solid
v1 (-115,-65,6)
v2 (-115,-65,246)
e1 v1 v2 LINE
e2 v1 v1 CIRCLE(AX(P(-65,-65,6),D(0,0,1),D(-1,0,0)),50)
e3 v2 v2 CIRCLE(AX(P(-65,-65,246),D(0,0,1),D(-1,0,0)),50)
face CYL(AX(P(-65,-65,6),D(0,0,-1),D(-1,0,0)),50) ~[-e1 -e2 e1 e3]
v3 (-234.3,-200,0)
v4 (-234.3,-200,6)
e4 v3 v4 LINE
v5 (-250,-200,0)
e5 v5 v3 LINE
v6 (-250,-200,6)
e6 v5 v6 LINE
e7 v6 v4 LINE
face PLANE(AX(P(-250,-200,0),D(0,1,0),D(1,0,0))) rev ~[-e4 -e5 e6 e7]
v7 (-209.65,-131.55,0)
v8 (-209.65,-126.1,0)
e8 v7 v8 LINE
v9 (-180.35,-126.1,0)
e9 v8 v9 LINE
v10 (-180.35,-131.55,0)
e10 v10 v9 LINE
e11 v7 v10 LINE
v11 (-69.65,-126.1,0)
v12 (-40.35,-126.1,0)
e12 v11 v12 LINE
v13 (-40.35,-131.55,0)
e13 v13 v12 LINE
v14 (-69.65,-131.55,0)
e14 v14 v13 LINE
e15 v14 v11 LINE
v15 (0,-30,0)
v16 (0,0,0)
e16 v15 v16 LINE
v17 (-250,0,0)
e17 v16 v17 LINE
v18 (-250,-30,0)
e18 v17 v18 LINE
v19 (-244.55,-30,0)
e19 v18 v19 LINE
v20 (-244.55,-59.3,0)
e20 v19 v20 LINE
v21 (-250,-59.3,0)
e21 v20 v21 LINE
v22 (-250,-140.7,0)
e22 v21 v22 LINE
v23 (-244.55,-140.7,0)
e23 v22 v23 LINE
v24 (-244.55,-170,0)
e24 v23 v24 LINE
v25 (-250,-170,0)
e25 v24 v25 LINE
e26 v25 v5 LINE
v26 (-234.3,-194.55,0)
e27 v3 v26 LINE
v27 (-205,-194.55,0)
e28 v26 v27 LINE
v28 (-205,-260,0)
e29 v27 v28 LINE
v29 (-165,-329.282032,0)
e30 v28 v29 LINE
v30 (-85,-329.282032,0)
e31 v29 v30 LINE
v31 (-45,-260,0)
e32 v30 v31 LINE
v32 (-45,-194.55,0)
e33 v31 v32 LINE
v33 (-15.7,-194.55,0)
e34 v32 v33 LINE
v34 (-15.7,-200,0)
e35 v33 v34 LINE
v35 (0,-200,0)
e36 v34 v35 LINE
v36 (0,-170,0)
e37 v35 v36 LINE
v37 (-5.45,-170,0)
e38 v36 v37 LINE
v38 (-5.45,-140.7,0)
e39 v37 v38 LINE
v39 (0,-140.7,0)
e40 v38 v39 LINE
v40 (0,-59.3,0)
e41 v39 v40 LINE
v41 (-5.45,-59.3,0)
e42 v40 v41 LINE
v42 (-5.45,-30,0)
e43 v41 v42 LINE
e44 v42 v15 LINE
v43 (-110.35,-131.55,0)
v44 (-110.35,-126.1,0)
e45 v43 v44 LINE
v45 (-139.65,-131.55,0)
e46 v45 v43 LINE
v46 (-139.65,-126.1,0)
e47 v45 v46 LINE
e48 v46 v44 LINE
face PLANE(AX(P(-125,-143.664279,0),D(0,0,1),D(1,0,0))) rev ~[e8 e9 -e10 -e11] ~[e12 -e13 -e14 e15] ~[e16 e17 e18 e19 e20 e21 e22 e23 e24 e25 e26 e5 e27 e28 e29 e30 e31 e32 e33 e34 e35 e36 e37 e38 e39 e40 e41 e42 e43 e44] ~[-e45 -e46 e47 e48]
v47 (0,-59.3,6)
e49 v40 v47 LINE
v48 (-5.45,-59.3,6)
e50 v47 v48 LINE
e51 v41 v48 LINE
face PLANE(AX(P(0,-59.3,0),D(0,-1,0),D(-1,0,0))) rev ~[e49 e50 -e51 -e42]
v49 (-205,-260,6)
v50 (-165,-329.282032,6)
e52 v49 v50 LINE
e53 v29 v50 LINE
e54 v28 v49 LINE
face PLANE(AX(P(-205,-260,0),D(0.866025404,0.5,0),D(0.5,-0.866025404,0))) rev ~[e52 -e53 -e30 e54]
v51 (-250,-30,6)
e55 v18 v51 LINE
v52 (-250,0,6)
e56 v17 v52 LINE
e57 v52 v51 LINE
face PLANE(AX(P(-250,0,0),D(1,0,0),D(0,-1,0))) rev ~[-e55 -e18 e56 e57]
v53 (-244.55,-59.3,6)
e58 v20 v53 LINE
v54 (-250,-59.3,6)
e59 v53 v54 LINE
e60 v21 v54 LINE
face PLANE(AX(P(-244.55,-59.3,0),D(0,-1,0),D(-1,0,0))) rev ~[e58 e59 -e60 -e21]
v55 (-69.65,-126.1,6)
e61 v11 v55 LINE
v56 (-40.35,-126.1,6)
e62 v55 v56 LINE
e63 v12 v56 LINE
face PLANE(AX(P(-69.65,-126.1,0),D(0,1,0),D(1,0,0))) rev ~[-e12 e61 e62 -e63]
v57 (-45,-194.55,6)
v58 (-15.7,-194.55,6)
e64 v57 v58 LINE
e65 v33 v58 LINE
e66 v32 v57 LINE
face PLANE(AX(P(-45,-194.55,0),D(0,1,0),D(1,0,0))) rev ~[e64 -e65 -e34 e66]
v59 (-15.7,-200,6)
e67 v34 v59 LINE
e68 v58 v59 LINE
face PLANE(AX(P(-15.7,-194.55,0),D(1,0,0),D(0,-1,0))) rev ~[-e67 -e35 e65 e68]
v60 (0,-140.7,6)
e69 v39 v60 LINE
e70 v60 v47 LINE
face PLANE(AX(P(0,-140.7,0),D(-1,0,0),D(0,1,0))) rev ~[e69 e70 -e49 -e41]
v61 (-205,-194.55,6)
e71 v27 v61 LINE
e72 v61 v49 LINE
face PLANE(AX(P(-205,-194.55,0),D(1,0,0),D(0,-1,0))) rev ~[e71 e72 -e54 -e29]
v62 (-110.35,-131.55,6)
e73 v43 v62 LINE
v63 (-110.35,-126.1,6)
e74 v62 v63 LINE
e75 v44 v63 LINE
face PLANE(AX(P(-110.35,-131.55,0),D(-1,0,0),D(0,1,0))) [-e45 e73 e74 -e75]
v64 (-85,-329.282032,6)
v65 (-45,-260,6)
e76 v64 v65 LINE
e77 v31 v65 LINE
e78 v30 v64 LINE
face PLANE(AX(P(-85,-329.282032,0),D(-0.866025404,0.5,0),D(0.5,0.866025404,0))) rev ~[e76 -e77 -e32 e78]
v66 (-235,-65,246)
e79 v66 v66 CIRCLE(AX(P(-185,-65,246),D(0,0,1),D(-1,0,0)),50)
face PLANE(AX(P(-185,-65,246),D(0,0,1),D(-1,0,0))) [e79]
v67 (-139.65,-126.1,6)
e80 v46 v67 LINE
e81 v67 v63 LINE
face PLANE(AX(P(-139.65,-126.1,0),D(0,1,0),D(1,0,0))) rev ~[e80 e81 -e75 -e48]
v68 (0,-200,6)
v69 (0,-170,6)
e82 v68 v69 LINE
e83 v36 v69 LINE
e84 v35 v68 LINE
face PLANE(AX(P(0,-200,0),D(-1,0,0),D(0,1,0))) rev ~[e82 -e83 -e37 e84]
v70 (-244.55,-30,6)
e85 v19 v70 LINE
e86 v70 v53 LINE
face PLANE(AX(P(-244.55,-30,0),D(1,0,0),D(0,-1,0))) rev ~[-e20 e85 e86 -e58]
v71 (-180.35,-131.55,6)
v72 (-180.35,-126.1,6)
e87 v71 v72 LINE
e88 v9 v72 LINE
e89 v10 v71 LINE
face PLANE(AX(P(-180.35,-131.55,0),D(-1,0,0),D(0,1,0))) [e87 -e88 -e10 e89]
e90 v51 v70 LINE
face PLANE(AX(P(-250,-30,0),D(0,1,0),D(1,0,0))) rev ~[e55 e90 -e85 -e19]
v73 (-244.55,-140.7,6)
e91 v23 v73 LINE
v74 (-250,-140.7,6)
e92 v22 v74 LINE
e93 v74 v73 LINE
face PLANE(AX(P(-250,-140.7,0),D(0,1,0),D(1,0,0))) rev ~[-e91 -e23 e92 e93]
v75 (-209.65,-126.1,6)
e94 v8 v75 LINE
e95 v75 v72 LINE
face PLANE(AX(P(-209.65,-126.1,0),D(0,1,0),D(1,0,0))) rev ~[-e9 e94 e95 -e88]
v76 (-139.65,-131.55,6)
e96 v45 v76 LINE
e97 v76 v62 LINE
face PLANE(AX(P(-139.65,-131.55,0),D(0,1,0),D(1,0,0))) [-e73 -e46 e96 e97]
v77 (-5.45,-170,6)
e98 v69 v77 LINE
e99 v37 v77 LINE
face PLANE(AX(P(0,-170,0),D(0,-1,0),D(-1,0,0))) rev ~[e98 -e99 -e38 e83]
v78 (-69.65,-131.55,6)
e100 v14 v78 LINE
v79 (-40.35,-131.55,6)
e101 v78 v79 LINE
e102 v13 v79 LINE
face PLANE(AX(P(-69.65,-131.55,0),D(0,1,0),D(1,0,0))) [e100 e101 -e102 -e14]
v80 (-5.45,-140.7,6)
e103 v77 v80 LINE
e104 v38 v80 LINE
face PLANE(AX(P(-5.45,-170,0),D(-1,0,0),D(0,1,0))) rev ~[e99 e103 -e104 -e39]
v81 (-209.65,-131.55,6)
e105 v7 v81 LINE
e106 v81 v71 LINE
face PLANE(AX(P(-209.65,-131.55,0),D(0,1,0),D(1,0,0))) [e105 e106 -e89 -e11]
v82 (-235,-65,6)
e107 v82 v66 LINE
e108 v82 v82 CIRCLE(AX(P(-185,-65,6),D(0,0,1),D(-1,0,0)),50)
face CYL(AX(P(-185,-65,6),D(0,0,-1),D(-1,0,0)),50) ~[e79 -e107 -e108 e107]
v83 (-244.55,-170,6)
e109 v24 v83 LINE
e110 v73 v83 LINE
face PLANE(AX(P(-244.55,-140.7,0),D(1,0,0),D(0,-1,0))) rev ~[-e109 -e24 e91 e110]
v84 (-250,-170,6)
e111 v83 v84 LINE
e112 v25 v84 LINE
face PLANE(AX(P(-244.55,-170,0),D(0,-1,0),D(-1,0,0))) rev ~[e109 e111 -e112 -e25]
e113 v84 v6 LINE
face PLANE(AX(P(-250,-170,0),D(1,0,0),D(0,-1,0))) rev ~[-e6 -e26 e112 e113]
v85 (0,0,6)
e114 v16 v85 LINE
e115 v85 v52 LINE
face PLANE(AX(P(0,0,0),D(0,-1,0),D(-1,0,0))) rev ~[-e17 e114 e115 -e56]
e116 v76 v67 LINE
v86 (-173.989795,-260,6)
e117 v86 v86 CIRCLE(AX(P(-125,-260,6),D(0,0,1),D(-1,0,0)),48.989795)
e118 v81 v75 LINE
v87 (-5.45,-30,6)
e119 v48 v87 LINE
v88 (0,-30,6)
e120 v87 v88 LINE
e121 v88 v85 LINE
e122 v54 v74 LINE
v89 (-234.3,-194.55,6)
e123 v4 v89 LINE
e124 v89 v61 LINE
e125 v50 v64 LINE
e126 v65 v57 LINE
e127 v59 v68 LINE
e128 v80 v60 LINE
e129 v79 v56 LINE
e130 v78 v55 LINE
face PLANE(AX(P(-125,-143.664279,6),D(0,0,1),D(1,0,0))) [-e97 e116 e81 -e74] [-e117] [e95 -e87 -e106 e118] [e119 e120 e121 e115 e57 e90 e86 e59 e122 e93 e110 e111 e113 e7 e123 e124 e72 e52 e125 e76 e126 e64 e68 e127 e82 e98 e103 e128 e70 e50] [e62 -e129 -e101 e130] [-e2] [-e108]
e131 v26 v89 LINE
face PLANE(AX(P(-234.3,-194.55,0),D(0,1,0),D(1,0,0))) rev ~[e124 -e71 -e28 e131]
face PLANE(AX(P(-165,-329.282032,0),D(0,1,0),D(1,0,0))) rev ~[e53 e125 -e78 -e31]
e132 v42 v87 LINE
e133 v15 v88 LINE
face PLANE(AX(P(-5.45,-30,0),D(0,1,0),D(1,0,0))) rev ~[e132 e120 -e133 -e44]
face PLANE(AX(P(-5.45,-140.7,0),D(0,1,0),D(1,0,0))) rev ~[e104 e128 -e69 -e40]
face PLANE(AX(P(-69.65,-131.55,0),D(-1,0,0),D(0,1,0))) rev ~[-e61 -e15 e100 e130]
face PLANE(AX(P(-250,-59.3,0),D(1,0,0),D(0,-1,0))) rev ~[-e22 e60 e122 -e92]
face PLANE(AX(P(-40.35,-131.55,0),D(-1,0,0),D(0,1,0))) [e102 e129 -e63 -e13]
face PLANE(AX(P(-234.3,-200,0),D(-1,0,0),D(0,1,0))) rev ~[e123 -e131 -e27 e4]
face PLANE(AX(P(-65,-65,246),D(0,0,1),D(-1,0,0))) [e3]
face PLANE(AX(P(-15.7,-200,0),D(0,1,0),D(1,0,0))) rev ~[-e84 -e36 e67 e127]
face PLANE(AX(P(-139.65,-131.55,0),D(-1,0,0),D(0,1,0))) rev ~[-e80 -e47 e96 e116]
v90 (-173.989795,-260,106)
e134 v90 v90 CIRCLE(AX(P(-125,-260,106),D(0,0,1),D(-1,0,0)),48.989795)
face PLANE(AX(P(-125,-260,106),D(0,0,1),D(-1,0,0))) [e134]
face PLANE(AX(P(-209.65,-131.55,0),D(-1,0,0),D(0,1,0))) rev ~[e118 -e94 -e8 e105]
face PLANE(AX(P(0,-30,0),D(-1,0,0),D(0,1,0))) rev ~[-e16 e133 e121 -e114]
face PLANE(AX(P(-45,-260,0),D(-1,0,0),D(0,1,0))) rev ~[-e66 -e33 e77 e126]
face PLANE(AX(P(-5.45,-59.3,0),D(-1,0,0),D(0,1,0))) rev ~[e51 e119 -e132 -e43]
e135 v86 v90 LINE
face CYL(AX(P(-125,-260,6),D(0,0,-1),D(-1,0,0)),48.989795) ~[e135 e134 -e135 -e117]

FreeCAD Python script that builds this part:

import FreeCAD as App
import Part
import Sketcher

V = App.Vector
Q = App.Units.Quantity

doc = App.newDocument("Part")
params = doc.addObject("Spreadsheet::Sheet", "Params")
for row, (alias, value) in enumerate([
    ("sketch1_width", "250 mm"),
    ("sketch1_width2", "80 mm"),
    ("sketch1_height", "30 mm"),
    ("sketch1_length", "80 mm"),
    ("sketch1_width3", "15.7 mm"),
    ("pad1_length", "6 mm"),
    ("pad2_length", "100 mm"),
    ("sketch3_diameter", "100 mm"),
    ("pad3_length", "240 mm"),
], start=1):
    params.set(f"A{row}", alias)
    params.set(f"B{row}", "=" + value)
    params.setAlias(f"B{row}", alias)

body = doc.addObject("PartDesign::Body", "Body")

sketch1 = body.newObject("Sketcher::SketchObject", "Sketch")
sketch1.AttachmentSupport = (doc.getObject("XY_Plane"), [""])
sketch1.MapMode = "FlatFace"
sketch1.addGeometry([
    Part.LineSegment(V(0, 0, 0), V(-250, 0, 0)),
    Part.LineSegment(V(-250, 0, 0), V(-250, -30, 0)),
    Part.LineSegment(V(-250, -30, 0), V(-244.55, -30, 0)),
    Part.LineSegment(V(-244.55, -30, 0), V(-244.55, -59.3, 0)),
    Part.LineSegment(V(-244.55, -59.3, 0), V(-250, -59.3, 0)),
    Part.LineSegment(V(-250, -59.3, 0), V(-250, -140.7, 0)),
    Part.LineSegment(V(-250, -140.7, 0), V(-244.55, -140.7, 0)),
    Part.LineSegment(V(-244.55, -140.7, 0), V(-244.55, -170, 0)),
    Part.LineSegment(V(-244.55, -170, 0), V(-250, -170, 0)),
    Part.LineSegment(V(-250, -170, 0), V(-250, -200, 0)),
    Part.LineSegment(V(-250, -200, 0), V(-234.3, -200, 0)),
    Part.LineSegment(V(-234.3, -200, 0), V(-234.3, -194.55, 0)),
    Part.LineSegment(V(-234.3, -194.55, 0), V(-205, -194.55, 0)),
    Part.LineSegment(V(-205, -194.55, 0), V(-205, -260, 0)),
    Part.LineSegment(V(-205, -260, 0), V(-165, -329.282032, 0)),
    Part.LineSegment(V(-165, -329.282032, 0), V(-85, -329.282032, 0)),
    Part.LineSegment(V(-85, -329.282032, 0), V(-45, -260, 0)),
    Part.LineSegment(V(-45, -260, 0), V(-45, -194.55, 0)),
    Part.LineSegment(V(-45, -194.55, 0), V(-15.7, -194.55, 0)),
    Part.LineSegment(V(-15.7, -194.55, 0), V(-15.7, -200, 0)),
    Part.LineSegment(V(-15.7, -200, 0), V(0, -200, 0)),
    Part.LineSegment(V(0, -200, 0), V(0, -170, 0)),
    Part.LineSegment(V(0, -170, 0), V(-5.45, -170, 0)),
    Part.LineSegment(V(-5.45, -170, 0), V(-5.45, -140.7, 0)),
    Part.LineSegment(V(-5.45, -140.7, 0), V(0, -140.7, 0)),
    Part.LineSegment(V(0, -140.7, 0), V(0, -59.3, 0)),
    Part.LineSegment(V(0, -59.3, 0), V(-5.45, -59.3, 0)),
    Part.LineSegment(V(-5.45, -59.3, 0), V(-5.45, -30, 0)),
    Part.LineSegment(V(-5.45, -30, 0), V(0, -30, 0)),
    Part.LineSegment(V(0, -30, 0), V(0, 0, 0)),
    Part.LineSegment(V(-180.35, -131.55, 0), V(-209.65, -131.55, 0)),
    Part.LineSegment(V(-209.65, -131.55, 0), V(-209.65, -126.1, 0)),
    Part.LineSegment(V(-209.65, -126.1, 0), V(-180.35, -126.1, 0)),
    Part.LineSegment(V(-180.35, -126.1, 0), V(-180.35, -131.55, 0)),
    Part.LineSegment(V(-110.35, -131.55, 0), V(-139.65, -131.55, 0)),
    Part.LineSegment(V(-139.65, -131.55, 0), V(-139.65, -126.1, 0)),
    Part.LineSegment(V(-139.65, -126.1, 0), V(-110.35, -126.1, 0)),
    Part.LineSegment(V(-110.35, -126.1, 0), V(-110.35, -131.55, 0)),
    Part.LineSegment(V(-40.35, -131.55, 0), V(-69.65, -131.55, 0)),
    Part.LineSegment(V(-69.65, -131.55, 0), V(-69.65, -126.1, 0)),
    Part.LineSegment(V(-69.65, -126.1, 0), V(-40.35, -126.1, 0)),
    Part.LineSegment(V(-40.35, -126.1, 0), V(-40.35, -131.55, 0)),
], False)
sketch1.addConstraint([
    Sketcher.Constraint("Coincident", 0, 2, 1, 1),
    Sketcher.Constraint("Coincident", 1, 2, 2, 1),
    Sketcher.Constraint("Coincident", 2, 2, 3, 1),
    Sketcher.Constraint("Coincident", 3, 2, 4, 1),
    Sketcher.Constraint("Coincident", 4, 2, 5, 1),
    Sketcher.Constraint("Coincident", 5, 2, 6, 1),
    Sketcher.Constraint("Coincident", 6, 2, 7, 1),
    Sketcher.Constraint("Coincident", 7, 2, 8, 1),
    Sketcher.Constraint("Coincident", 8, 2, 9, 1),
    Sketcher.Constraint("Coincident", 9, 2, 10, 1),
    Sketcher.Constraint("Coincident", 10, 2, 11, 1),
    Sketcher.Constraint("Coincident", 11, 2, 12, 1),
    Sketcher.Constraint("Coincident", 12, 2, 13, 1),
    Sketcher.Constraint("Coincident", 13, 2, 14, 1),
    Sketcher.Constraint("Coincident", 14, 2, 15, 1),
    Sketcher.Constraint("Coincident", 15, 2, 16, 1),
    Sketcher.Constraint("Coincident", 16, 2, 17, 1),
    Sketcher.Constraint("Coincident", 17, 2, 18, 1),
    Sketcher.Constraint("Coincident", 18, 2, 19, 1),
    Sketcher.Constraint("Coincident", 19, 2, 20, 1),
    Sketcher.Constraint("Coincident", 20, 2, 21, 1),
    Sketcher.Constraint("Coincident", 21, 2, 22, 1),
    Sketcher.Constraint("Coincident", 22, 2, 23, 1),
    Sketcher.Constraint("Coincident", 23, 2, 24, 1),
    Sketcher.Constraint("Coincident", 24, 2, 25, 1),
    Sketcher.Constraint("Coincident", 25, 2, 26, 1),
    Sketcher.Constraint("Coincident", 26, 2, 27, 1),
    Sketcher.Constraint("Coincident", 27, 2, 28, 1),
    Sketcher.Constraint("Coincident", 28, 2, 29, 1),
    Sketcher.Constraint("Coincident", 29, 2, 0, 1),
    Sketcher.Constraint("Coincident", 30, 2, 31, 1),
    Sketcher.Constraint("Coincident", 31, 2, 32, 1),
    Sketcher.Constraint("Coincident", 32, 2, 33, 1),
    Sketcher.Constraint("Coincident", 33, 2, 30, 1),
    Sketcher.Constraint("Coincident", 34, 2, 35, 1),
    Sketcher.Constraint("Coincident", 35, 2, 36, 1),
    Sketcher.Constraint("Coincident", 36, 2, 37, 1),
    Sketcher.Constraint("Coincident", 37, 2, 34, 1),
    Sketcher.Constraint("Coincident", 38, 2, 39, 1),
    Sketcher.Constraint("Coincident", 39, 2, 40, 1),
    Sketcher.Constraint("Coincident", 40, 2, 41, 1),
    Sketcher.Constraint("Coincident", 41, 2, 38, 1),
    Sketcher.Constraint("Horizontal", 0),
    Sketcher.Constraint("Vertical", 1),
    Sketcher.Constraint("Horizontal", 2),
    Sketcher.Constraint("Vertical", 3),
    Sketcher.Constraint("Horizontal", 4),
    Sketcher.Constraint("Vertical", 5),
    Sketcher.Constraint("Horizontal", 6),
    Sketcher.Constraint("Vertical", 7),
    Sketcher.Constraint("Horizontal", 8),
    Sketcher.Constraint("Vertical", 9),
    Sketcher.Constraint("Horizontal", 10),
    Sketcher.Constraint("Vertical", 11),
    Sketcher.Constraint("Horizontal", 12),
    Sketcher.Constraint("Vertical", 13),
    Sketcher.Constraint("Horizontal", 15),
    Sketcher.Constraint("Vertical", 17),
    Sketcher.Constraint("Horizontal", 18),
    Sketcher.Constraint("Vertical", 19),
    Sketcher.Constraint("Horizontal", 20),
    Sketcher.Constraint("Vertical", 21),
    Sketcher.Constraint("Horizontal", 22),
    Sketcher.Constraint("Vertical", 23),
    Sketcher.Constraint("Horizontal", 24),
    Sketcher.Constraint("Vertical", 25),
    Sketcher.Constraint("Horizontal", 26),
    Sketcher.Constraint("Vertical", 27),
    Sketcher.Constraint("Horizontal", 28),
    Sketcher.Constraint("Vertical", 29),
    Sketcher.Constraint("Horizontal", 30),
    Sketcher.Constraint("Vertical", 31),
    Sketcher.Constraint("Horizontal", 32),
    Sketcher.Constraint("Vertical", 33),
    Sketcher.Constraint("Horizontal", 34),
    Sketcher.Constraint("Vertical", 35),
    Sketcher.Constraint("Horizontal", 36),
    Sketcher.Constraint("Vertical", 37),
    Sketcher.Constraint("Horizontal", 38),
    Sketcher.Constraint("Vertical", 39),
    Sketcher.Constraint("Horizontal", 40),
    Sketcher.Constraint("Vertical", 41),
    Sketcher.Constraint("Coincident", 29, 2, -1, 1),
    Sketcher.Constraint("PointOnObject", 20, 2, -2),
    Sketcher.Constraint("PointOnObject", 24, 2, -2),
    Sketcher.Constraint("Horizontal", 13, 2, 16, 2),
    Sketcher.Constraint("Horizontal", 12, 2, 17, 2),
    Sketcher.Constraint("Horizontal", 10, 2, 19, 2),
    Sketcher.Constraint("Horizontal", 8, 2, 21, 2),
    Sketcher.Constraint("Horizontal", 6, 2, 23, 2),
    Sketcher.Constraint("Horizontal", 4, 2, 25, 2),
    Sketcher.Constraint("Horizontal", 2, 2, 27, 2),
    Sketcher.Constraint("Horizontal", 33, 2, 34, 2),
    Sketcher.Constraint("Horizontal", 32, 2, 35, 2),
    Sketcher.Constraint("Horizontal", 37, 2, 38, 2),
    Sketcher.Constraint("Horizontal", 36, 2, 39, 2),
    Sketcher.Constraint("Vertical", 1, 2, 4, 2),
    Sketcher.Constraint("Vertical", 3, 2, 6, 2),
    Sketcher.Constraint("Vertical", 5, 2, 8, 2),
    Sketcher.Constraint("Vertical", 23, 2, 26, 2),
    Sketcher.Constraint("Equal", 12, 18),
    Sketcher.Constraint("Equal", 10, 20),
    Sketcher.Constraint("Equal", 8, 22),
    Sketcher.Constraint("Equal", 18, 30),
    Sketcher.Constraint("Equal", 32, 34),
    Sketcher.Constraint("Equal", 36, 38),
    Sketcher.Constraint("Equal", 40, 3),
    Sketcher.Constraint("Equal", 3, 7),
    Sketcher.Constraint("Equal", 1, 9),
    Sketcher.Constraint("Equal", 28, 11),
    Sketcher.Constraint("Equal", 19, 31),
    Sketcher.Constraint("Equal", 14, 16),
    Sketcher.Constraint("DistanceX", 0, 2, 0, 1, 250.0),
    Sketcher.Constraint("DistanceX", 15, 1, 15, 2, 80.0),
    Sketcher.Constraint("DistanceY", 1, 2, 1, 1, 30.0),
    Sketcher.Constraint("Angle", 14, Q("-60 deg")),
    Sketcher.Constraint("Distance", 14, 80.0),
    Sketcher.Constraint("DistanceX", 10, 1, 10, 2, 15.7),
    Sketcher.Constraint("DistanceY", 5, 2, 5, 1, 81.4),
    Sketcher.Constraint("DistanceY", 13, 2, -1, 1, 260.0),
    Sketcher.Constraint("DistanceY", 12, 2, 30, 2, 63.0),
    Sketcher.Constraint("DistanceX", 30, 2, 34, 2, 70.0),
    Sketcher.Constraint("DistanceX", 34, 2, 38, 2, 70.0),
    Sketcher.Constraint("DistanceX", 2, 1, 2, 2, 5.45),
    Sketcher.Constraint("DistanceX", 6, 2, 30, 2, 34.9),
])
sketch1.setExpression("Constraints[112]", "Params.sketch1_width")
sketch1.setExpression("Constraints[113]", "Params.sketch1_width2")
sketch1.setExpression("Constraints[114]", "Params.sketch1_height")
sketch1.setExpression("Constraints[116]", "Params.sketch1_length")
sketch1.setExpression("Constraints[117]", "Params.sketch1_width3")
pad1 = body.newObject("PartDesign::Pad", "Pad")
pad1.Profile = sketch1
pad1.setExpression("Length", "Params.pad1_length")

sketch2 = body.newObject("Sketcher::SketchObject", "Sketch001")
sketch2.AttachmentSupport = (doc.getObject("XY_Plane"), [""])
sketch2.MapMode = "FlatFace"
sketch2.AttachmentOffset = App.Placement(V(0, 0, 6), App.Rotation())
sketch2.addGeometry(Part.Circle(V(-125, -260, 0), V(0, 0, 1), 48.989795), False)
sketch2.addConstraint([
    Sketcher.Constraint("DistanceX", 0, 3, -1, 1, 125.0),
    Sketcher.Constraint("DistanceY", 0, 3, -1, 1, 260.0),
    Sketcher.Constraint("Diameter", 0, 97.97959),
])
pad2 = body.newObject("PartDesign::Pad", "Pad001")
pad2.Profile = sketch2
pad2.setExpression("Length", "Params.pad2_length")

sketch3 = body.newObject("Sketcher::SketchObject", "Sketch002")
sketch3.AttachmentSupport = (doc.getObject("XY_Plane"), [""])
sketch3.MapMode = "FlatFace"
sketch3.AttachmentOffset = App.Placement(V(0, 0, 6), App.Rotation())
sketch3.addGeometry([
    Part.Circle(V(-185, -65, 0), V(0, 0, 1), 50),
    Part.Circle(V(-65, -65, 0), V(0, 0, 1), 50),
], False)
sketch3.addConstraint([
    Sketcher.Constraint("Equal", 0, 1),
    Sketcher.Constraint("Horizontal", 0, 3, 1, 3),
    Sketcher.Constraint("Diameter", 0, 100.0),
    Sketcher.Constraint("DistanceX", 0, 3, -1, 1, 185.0),
    Sketcher.Constraint("DistanceY", 0, 3, -1, 1, 65.0),
    Sketcher.Constraint("DistanceX", 1, 3, -1, 1, 65.0),
])
sketch3.setExpression("Constraints[2]", "Params.sketch3_diameter")
pad3 = body.newObject("PartDesign::Pad", "Pad002")
pad3.Profile = sketch3
pad3.setExpression("Length", "Params.pad3_length")

doc.recompute()
